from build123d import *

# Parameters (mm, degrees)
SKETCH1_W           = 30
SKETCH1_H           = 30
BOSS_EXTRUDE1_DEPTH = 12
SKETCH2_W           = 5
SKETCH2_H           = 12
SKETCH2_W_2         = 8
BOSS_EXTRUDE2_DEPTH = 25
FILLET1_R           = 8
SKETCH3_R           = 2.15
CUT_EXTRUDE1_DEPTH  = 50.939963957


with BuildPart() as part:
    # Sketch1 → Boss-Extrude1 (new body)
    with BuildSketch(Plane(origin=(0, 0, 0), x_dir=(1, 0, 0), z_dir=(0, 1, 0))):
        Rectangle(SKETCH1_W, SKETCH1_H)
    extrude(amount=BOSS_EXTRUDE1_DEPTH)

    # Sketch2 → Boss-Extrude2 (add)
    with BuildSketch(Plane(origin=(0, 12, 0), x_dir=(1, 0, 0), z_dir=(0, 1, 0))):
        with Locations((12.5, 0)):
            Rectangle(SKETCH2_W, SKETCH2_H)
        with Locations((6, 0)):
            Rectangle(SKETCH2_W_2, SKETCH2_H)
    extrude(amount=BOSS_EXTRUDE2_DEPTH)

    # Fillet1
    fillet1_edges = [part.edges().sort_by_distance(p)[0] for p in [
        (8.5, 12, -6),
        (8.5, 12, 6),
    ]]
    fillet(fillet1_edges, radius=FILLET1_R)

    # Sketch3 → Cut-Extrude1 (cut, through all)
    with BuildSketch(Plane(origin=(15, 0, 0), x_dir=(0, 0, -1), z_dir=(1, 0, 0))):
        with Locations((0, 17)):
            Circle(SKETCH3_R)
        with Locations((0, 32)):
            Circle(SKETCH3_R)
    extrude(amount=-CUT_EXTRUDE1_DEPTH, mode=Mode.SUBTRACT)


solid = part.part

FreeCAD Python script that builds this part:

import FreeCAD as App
import Part
import Sketcher

V = App.Vector


def edges_at(feature, points):
    """Names of the edges that pass closest to the given points."""
    edges = feature.Shape.Edges
    near = lambda p: min(range(len(edges)), key=lambda i: edges[i].distToShape(Part.Vertex(*p))[0])
    return sorted({f"Edge{near(p) + 1}" for p in points})


def add_polygon(sketch, points):
    """Adds a closed chain of lines whose ends are joined by coincident constraints."""
    first, n = sketch.GeometryCount, len(points)
    for a, b in zip(points, points[1:] + points[:1]):
        sketch.addGeometry(Part.LineSegment(App.Vector(*a, 0), App.Vector(*b, 0)), False)
    for i in range(n):
        sketch.addConstraint(Sketcher.Constraint("Coincident", first + i, 2, first + (i + 1) % n, 1))

doc = App.newDocument("Part")
params = doc.addObject("Spreadsheet::Sheet", "Params")
for row, (alias, value) in enumerate([
    ("sketch1_width", "30 mm"),
    ("pad1_length", "12 mm"),
    ("sketch2_width", "13 mm"),
    ("sketch2_height", "12 mm"),
    ("pad2_length", "25 mm"),
    ("fillet_radius", "8 mm"),
    ("sketch3_diameter", "4.3 mm"),
], start=1):
    params.set(f"A{row}", alias)
    params.set(f"B{row}", "=" + value)
    params.setAlias(f"B{row}", alias)

body = doc.addObject("PartDesign::Body", "Body")

# Sketch on XZ plane
sketch1 = body.newObject("Sketcher::SketchObject", "Sketch")
sketch1.AttachmentSupport = (doc.getObject("XZ_Plane"), [""])
sketch1.MapMode = "FlatFace"
add_polygon(sketch1, [(-15, -15), (-15, 15), (15, 15), (15, -15)])  # lines 0-3
sketch1.addConstraint([
    Sketcher.Constraint("Vertical", 0),
    Sketcher.Constraint("Horizontal", 1),
    Sketcher.Constraint("Vertical", 2),
    Sketcher.Constraint("Horizontal", 3),
    Sketcher.Constraint("Symmetric", 0, 2, 2, 2, -1, 1),
    Sketcher.Constraint("Equal", 3, 0),
    Sketcher.Constraint("DistanceX", 1, 1, 1, 2, 30.0),
])
sketch1.setExpression("Constraints[10]", "Params.sketch1_width")
pad1 = body.newObject("PartDesign::Pad", "Pad")
pad1.Profile = sketch1
pad1.setExpression("Length", "Params.pad1_length")
pad1.Reversed = True

# Sketch on XZ plane
sketch2 = body.newObject("Sketcher::SketchObject", "Sketch001")
sketch2.AttachmentSupport = (doc.getObject("XZ_Plane"), [""])
sketch2.MapMode = "FlatFace"
sketch2.AttachmentOffset = App.Placement(V(0, 0, -12), App.Rotation())
add_polygon(sketch2, [(15, 6), (15, -6), (2, -6), (2, 6)])  # lines 0-3
sketch2.addConstraint([
    Sketcher.Constraint("Vertical", 0),
    Sketcher.Constraint("Horizontal", 1),
    Sketcher.Constraint("Vertical", 2),
    Sketcher.Constraint("Horizontal", 3),
    Sketcher.Constraint("DistanceX", 1, 2, 1, 1, 13.0),
    Sketcher.Constraint("DistanceY", 0, 2, 0, 1, 12.0),
    Sketcher.Constraint("DistanceX", -1, 1, 0, 2, 15.0),
    Sketcher.Constraint("DistanceY", 0, 2, -1, 1, 6.0),
])
sketch2.setExpression("Constraints[8]", "Params.sketch2_width")
sketch2.setExpression("Constraints[9]", "Params.sketch2_height")
pad2 = body.newObject("PartDesign::Pad", "Pad001")
pad2.Profile = sketch2
pad2.setExpression("Length", "Params.pad2_length")
pad2.Reversed = True
doc.recompute()

fillet = body.newObject("PartDesign::Fillet", "Fillet")
fillet.Base = (pad2, edges_at(pad2, [(8.5, 12, -6), (8.5, 12, 6)]))
fillet.setExpression("Radius", "Params.fillet_radius")

# Sketch on YZ plane
sketch3 = body.newObject("Sketcher::SketchObject", "Sketch002")
sketch3.AttachmentSupport = (doc.getObject("YZ_Plane"), [""])
sketch3.MapMode = "FlatFace"
sketch3.AttachmentOffset = App.Placement(V(0, 0, 15), App.Rotation())
sketch3.addGeometry([
    Part.Circle(V(17, 0, 0), V(0, 0, 1), 2.15),
    Part.Circle(V(32, 0, 0), V(0, 0, 1), 2.15),
], False)
sketch3.addConstraint([
    Sketcher.Constraint("Equal", 0, 1),
    Sketcher.Constraint("PointOnObject", 0, 3, -1),
    Sketcher.Constraint("PointOnObject", 1, 3, -1),
    Sketcher.Constraint("Diameter", 0, 4.3),
    Sketcher.Constraint("DistanceX", -1, 1, 0, 3, 17.0),
    Sketcher.Constraint("DistanceX", -1, 1, 1, 3, 32.0),
])
sketch3.setExpression("Constraints[3]", "Params.sketch3_diameter")
pocket1 = body.newObject("PartDesign::Pocket", "Pocket")
pocket1.Profile = sketch3
pocket1.Type = "ThroughAll"

doc.recompute()
